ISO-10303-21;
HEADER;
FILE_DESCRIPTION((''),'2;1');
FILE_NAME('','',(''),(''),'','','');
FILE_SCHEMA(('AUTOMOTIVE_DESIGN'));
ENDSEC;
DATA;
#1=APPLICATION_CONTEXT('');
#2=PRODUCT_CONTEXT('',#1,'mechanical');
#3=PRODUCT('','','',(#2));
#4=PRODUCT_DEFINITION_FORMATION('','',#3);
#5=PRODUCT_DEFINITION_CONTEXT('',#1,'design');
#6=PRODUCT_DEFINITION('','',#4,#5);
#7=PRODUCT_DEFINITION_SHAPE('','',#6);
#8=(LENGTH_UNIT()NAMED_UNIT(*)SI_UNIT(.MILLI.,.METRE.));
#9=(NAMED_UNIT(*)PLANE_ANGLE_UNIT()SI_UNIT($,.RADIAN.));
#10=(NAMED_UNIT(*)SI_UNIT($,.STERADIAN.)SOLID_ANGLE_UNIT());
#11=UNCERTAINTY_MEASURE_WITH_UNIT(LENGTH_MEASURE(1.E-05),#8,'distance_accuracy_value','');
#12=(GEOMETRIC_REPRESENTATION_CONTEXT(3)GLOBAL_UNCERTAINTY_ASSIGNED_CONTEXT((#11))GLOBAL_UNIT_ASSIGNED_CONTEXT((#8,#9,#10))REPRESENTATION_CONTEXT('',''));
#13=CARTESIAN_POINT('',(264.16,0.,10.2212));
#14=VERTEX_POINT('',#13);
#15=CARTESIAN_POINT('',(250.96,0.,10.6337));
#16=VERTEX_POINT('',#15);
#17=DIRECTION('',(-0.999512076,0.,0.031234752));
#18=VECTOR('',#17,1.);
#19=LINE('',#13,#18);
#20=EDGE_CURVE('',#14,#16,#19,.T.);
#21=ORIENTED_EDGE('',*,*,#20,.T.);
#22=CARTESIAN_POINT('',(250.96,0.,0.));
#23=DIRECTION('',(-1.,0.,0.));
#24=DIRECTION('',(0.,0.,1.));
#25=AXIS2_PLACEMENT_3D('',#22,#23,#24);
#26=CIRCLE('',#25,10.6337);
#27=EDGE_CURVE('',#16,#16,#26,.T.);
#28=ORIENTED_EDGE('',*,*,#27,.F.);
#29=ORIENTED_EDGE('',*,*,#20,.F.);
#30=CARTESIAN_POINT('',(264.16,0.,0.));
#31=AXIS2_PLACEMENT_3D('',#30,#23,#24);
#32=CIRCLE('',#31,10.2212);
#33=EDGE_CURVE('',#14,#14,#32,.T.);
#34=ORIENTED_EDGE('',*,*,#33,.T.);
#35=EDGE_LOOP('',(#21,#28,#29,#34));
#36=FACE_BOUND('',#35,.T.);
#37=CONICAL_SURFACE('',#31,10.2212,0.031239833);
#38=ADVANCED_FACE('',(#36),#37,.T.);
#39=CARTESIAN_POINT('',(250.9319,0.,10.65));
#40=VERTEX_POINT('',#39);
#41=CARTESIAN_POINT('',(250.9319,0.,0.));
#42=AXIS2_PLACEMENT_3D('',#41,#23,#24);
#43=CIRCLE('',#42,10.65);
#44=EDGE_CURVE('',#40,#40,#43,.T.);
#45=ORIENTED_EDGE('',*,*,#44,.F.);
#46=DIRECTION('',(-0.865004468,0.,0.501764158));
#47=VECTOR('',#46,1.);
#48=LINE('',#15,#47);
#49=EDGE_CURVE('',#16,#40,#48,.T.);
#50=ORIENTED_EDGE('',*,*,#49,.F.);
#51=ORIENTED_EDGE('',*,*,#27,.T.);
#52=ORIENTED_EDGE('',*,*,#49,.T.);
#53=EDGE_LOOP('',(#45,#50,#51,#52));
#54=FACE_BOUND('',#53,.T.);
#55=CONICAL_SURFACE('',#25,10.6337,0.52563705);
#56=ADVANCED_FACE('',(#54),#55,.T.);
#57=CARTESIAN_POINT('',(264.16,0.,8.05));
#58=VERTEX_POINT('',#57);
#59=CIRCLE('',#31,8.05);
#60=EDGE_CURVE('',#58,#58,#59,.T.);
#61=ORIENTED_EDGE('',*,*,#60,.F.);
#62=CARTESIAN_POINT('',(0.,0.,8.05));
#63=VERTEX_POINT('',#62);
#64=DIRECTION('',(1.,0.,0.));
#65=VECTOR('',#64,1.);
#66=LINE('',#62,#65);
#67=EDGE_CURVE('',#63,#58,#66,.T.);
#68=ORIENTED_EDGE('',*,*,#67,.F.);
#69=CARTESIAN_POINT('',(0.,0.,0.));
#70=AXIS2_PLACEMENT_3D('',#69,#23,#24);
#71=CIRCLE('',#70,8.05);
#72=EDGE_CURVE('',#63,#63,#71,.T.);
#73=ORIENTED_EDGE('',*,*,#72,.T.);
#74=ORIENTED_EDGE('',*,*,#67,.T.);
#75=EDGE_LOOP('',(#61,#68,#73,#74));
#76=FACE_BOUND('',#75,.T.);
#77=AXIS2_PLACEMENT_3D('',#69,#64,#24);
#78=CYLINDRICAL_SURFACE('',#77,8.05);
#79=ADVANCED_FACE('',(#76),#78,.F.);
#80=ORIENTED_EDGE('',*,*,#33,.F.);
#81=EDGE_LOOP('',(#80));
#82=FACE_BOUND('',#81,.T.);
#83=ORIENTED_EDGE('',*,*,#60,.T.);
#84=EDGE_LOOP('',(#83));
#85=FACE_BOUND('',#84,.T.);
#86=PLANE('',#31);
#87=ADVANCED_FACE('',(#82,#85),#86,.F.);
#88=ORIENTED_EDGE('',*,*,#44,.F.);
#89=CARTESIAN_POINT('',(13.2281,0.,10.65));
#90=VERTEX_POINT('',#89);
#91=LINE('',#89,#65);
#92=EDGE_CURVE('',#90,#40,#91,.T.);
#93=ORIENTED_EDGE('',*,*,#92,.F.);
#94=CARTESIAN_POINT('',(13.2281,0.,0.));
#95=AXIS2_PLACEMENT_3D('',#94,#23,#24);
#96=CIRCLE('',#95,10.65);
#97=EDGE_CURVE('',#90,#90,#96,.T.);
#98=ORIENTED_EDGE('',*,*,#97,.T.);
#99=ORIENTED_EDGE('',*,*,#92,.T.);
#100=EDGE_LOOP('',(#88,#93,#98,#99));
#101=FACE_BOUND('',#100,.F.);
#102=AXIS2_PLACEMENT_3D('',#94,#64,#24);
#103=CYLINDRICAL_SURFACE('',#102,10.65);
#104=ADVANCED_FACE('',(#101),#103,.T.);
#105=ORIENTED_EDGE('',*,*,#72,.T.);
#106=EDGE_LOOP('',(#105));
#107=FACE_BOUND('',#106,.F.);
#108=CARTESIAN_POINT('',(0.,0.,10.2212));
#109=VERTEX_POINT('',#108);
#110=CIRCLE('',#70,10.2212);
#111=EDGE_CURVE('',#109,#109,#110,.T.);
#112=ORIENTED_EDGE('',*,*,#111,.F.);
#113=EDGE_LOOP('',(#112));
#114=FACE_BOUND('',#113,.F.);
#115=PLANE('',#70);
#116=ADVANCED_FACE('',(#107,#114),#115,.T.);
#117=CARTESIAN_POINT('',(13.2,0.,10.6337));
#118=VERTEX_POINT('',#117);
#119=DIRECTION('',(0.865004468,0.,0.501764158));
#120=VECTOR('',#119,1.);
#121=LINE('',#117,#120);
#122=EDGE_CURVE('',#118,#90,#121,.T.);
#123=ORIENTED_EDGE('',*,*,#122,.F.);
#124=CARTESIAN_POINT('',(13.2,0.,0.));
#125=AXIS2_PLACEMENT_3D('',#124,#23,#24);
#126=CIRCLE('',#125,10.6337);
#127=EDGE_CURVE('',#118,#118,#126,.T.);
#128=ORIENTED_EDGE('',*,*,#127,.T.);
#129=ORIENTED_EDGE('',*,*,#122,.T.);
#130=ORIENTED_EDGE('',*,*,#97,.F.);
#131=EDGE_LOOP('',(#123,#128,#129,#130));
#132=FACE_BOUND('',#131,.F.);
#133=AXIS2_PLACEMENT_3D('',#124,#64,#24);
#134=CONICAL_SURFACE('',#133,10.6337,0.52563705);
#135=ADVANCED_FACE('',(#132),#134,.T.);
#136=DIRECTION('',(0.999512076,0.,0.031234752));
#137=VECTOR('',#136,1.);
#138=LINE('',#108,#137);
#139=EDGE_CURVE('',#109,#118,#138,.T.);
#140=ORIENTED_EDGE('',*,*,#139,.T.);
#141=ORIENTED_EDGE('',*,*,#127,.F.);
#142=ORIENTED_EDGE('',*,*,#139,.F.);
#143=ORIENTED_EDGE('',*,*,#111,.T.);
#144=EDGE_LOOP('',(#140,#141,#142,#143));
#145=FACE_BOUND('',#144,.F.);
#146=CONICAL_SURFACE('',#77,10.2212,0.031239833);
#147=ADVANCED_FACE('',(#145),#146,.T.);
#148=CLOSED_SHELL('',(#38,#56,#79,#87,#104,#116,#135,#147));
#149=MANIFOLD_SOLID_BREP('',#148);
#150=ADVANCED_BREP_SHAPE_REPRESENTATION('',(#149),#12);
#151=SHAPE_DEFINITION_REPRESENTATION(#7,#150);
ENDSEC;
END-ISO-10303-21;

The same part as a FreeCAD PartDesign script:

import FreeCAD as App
import Part
import Sketcher
Q = App.Units.Quantity

doc = App.newDocument("Part")
body = doc.addObject("PartDesign::Body", "Body")

sketch1 = body.newObject("Sketcher::SketchObject", "Sketch")
sketch1.AttachmentSupport = (doc.getObject("XZ_Plane"), [""])
sketch1.MapMode = "FlatFace"
sketch1.addGeometry(Part.LineSegment(App.Vector(264.16, 8.05, 0), App.Vector(0, 8.05, 0)), False)
sketch1.addGeometry(Part.LineSegment(App.Vector(0, 8.05, 0), App.Vector(0, 10.221, 0)), False)
sketch1.addGeometry(Part.LineSegment(App.Vector(0, 10.221, 0), App.Vector(13.2, 10.634, 0)), False)
sketch1.addGeometry(Part.LineSegment(App.Vector(13.2, 10.634, 0), App.Vector(13.228, 10.65, 0)), False)
sketch1.addGeometry(Part.LineSegment(App.Vector(13.228, 10.65, 0), App.Vector(250.932, 10.65, 0)), False)
sketch1.addGeometry(Part.LineSegment(App.Vector(250.932, 10.65, 0), App.Vector(250.96, 10.634, 0)), False)
sketch1.addGeometry(Part.LineSegment(App.Vector(250.96, 10.634, 0), App.Vector(264.16, 10.221, 0)), False)
sketch1.addGeometry(Part.LineSegment(App.Vector(264.16, 10.221, 0), App.Vector(264.16, 8.05, 0)), False)
sketch1.addConstraint(Sketcher.Constraint("Coincident", 0, 2, 1, 1))
sketch1.addConstraint(Sketcher.Constraint("Coincident", 1, 2, 2, 1))
sketch1.addConstraint(Sketcher.Constraint("Coincident", 2, 2, 3, 1))
sketch1.addConstraint(Sketcher.Constraint("Coincident", 3, 2, 4, 1))
sketch1.addConstraint(Sketcher.Constraint("Coincident", 4, 2, 5, 1))
sketch1.addConstraint(Sketcher.Constraint("Coincident", 5, 2, 6, 1))
sketch1.addConstraint(Sketcher.Constraint("Coincident", 6, 2, 7, 1))
sketch1.addConstraint(Sketcher.Constraint("Coincident", 7, 2, 0, 1))
sketch1.addConstraint(Sketcher.Constraint("Horizontal", 0))
sketch1.addConstraint(Sketcher.Constraint("Vertical", 1))
sketch1.addConstraint(Sketcher.Constraint("Horizontal", 4))
sketch1.addConstraint(Sketcher.Constraint("Vertical", 7))
sketch1.addConstraint(Sketcher.Constraint("PointOnObject", 0, 2, -2))
sketch1.addConstraint(Sketcher.Constraint("Horizontal", 2, 2, 5, 2))
sketch1.addConstraint(Sketcher.Constraint("Horizontal", 1, 2, 6, 2))
sketch1.addConstraint(Sketcher.Constraint("Equal", 3, 5))
sketch1.addConstraint(Sketcher.Constraint("Equal", 2, 6))
sketch1.addConstraint(Sketcher.Constraint("DistanceX", 0, 2, 0, 1, Q("10.4 in")))
sketch1.addConstraint(Sketcher.Constraint("Angle", 2, Q("1.79 deg")))
sketch1.addConstraint(Sketcher.Constraint("DistanceX", -1, 1, 2, 2, 13.2))
sketch1.addConstraint(Sketcher.Constraint("DistanceY", 0, 2, 3, 2, 2.6))
sketch1.addConstraint(Sketcher.Constraint("DistanceX", 4, 1, 4, 2, 237.7038))
sketch1.addConstraint(Sketcher.Constraint("DistanceY", 1, 1, 1, 2, 2.1712))
sketch1.addConstraint(Sketcher.Constraint("DistanceY", -1, 1, 1, 2, Q("0.4024 in")))
revolution = body.newObject("PartDesign::Revolution", "Revolution")
revolution.Profile = sketch1
revolution.ReferenceAxis = (sketch1, ["H_Axis"])
revolution.Angle = 360

doc.recompute()
